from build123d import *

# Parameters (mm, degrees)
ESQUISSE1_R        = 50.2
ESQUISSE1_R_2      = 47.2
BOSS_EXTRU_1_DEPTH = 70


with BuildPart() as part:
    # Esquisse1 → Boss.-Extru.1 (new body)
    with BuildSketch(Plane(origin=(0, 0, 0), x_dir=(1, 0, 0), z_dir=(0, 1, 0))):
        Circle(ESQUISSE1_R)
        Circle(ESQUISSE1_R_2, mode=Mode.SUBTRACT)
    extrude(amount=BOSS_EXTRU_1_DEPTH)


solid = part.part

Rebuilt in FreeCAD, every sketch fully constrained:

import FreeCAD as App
import Part
import Sketcher
from FreeCAD import Vector
Q = App.Units.Quantity

doc = App.newDocument("Part")
params = doc.addObject("Spreadsheet::Sheet", "Params")
for row, (alias, value) in enumerate([
    ("sketch1_diameter", "100.4 mm"),
    ("sketch1_diameter2", "94.4 mm"),
    ("pad1_length", "70 mm"),
], start=1):
    params.set(f"A{row}", alias)
    params.set(f"B{row}", "=" + value)
    params.setAlias(f"B{row}", alias)

body = doc.addObject("PartDesign::Body", "Body")

# Sketch on XZ plane
sketch1 = body.newObject("Sketcher::SketchObject", "Sketch")
sketch1.AttachmentSupport = (doc.getObject("XZ_Plane"), [""])
sketch1.MapMode = "FlatFace"
sketch1.addGeometry(Part.Circle(Vector(0, 0, 0), Vector(0, 0, 1), 50.2), False)
sketch1.addGeometry(Part.Circle(Vector(0, 0, 0), Vector(0, 0, 1), 47.2), False)
sketch1.addConstraint(Sketcher.Constraint("Coincident", 0, 3, -1, 1))
sketch1.addConstraint(Sketcher.Constraint("Coincident", 1, 3, -1, 1))
sketch1.addConstraint(Sketcher.Constraint("Diameter", 0, Q("100.4 mm")))
sketch1.addConstraint(Sketcher.Constraint("Diameter", 1, Q("94.4 mm")))
sketch1.setExpression("Constraints[2]", "Params.sketch1_diameter")
sketch1.setExpression("Constraints[3]", "Params.sketch1_diameter2")
pad1 = body.newObject("PartDesign::Pad", "Pad")
pad1.Profile = sketch1
pad1.setExpression("Length", "Params.pad1_length")
pad1.Reversed = True

doc.recompute()
